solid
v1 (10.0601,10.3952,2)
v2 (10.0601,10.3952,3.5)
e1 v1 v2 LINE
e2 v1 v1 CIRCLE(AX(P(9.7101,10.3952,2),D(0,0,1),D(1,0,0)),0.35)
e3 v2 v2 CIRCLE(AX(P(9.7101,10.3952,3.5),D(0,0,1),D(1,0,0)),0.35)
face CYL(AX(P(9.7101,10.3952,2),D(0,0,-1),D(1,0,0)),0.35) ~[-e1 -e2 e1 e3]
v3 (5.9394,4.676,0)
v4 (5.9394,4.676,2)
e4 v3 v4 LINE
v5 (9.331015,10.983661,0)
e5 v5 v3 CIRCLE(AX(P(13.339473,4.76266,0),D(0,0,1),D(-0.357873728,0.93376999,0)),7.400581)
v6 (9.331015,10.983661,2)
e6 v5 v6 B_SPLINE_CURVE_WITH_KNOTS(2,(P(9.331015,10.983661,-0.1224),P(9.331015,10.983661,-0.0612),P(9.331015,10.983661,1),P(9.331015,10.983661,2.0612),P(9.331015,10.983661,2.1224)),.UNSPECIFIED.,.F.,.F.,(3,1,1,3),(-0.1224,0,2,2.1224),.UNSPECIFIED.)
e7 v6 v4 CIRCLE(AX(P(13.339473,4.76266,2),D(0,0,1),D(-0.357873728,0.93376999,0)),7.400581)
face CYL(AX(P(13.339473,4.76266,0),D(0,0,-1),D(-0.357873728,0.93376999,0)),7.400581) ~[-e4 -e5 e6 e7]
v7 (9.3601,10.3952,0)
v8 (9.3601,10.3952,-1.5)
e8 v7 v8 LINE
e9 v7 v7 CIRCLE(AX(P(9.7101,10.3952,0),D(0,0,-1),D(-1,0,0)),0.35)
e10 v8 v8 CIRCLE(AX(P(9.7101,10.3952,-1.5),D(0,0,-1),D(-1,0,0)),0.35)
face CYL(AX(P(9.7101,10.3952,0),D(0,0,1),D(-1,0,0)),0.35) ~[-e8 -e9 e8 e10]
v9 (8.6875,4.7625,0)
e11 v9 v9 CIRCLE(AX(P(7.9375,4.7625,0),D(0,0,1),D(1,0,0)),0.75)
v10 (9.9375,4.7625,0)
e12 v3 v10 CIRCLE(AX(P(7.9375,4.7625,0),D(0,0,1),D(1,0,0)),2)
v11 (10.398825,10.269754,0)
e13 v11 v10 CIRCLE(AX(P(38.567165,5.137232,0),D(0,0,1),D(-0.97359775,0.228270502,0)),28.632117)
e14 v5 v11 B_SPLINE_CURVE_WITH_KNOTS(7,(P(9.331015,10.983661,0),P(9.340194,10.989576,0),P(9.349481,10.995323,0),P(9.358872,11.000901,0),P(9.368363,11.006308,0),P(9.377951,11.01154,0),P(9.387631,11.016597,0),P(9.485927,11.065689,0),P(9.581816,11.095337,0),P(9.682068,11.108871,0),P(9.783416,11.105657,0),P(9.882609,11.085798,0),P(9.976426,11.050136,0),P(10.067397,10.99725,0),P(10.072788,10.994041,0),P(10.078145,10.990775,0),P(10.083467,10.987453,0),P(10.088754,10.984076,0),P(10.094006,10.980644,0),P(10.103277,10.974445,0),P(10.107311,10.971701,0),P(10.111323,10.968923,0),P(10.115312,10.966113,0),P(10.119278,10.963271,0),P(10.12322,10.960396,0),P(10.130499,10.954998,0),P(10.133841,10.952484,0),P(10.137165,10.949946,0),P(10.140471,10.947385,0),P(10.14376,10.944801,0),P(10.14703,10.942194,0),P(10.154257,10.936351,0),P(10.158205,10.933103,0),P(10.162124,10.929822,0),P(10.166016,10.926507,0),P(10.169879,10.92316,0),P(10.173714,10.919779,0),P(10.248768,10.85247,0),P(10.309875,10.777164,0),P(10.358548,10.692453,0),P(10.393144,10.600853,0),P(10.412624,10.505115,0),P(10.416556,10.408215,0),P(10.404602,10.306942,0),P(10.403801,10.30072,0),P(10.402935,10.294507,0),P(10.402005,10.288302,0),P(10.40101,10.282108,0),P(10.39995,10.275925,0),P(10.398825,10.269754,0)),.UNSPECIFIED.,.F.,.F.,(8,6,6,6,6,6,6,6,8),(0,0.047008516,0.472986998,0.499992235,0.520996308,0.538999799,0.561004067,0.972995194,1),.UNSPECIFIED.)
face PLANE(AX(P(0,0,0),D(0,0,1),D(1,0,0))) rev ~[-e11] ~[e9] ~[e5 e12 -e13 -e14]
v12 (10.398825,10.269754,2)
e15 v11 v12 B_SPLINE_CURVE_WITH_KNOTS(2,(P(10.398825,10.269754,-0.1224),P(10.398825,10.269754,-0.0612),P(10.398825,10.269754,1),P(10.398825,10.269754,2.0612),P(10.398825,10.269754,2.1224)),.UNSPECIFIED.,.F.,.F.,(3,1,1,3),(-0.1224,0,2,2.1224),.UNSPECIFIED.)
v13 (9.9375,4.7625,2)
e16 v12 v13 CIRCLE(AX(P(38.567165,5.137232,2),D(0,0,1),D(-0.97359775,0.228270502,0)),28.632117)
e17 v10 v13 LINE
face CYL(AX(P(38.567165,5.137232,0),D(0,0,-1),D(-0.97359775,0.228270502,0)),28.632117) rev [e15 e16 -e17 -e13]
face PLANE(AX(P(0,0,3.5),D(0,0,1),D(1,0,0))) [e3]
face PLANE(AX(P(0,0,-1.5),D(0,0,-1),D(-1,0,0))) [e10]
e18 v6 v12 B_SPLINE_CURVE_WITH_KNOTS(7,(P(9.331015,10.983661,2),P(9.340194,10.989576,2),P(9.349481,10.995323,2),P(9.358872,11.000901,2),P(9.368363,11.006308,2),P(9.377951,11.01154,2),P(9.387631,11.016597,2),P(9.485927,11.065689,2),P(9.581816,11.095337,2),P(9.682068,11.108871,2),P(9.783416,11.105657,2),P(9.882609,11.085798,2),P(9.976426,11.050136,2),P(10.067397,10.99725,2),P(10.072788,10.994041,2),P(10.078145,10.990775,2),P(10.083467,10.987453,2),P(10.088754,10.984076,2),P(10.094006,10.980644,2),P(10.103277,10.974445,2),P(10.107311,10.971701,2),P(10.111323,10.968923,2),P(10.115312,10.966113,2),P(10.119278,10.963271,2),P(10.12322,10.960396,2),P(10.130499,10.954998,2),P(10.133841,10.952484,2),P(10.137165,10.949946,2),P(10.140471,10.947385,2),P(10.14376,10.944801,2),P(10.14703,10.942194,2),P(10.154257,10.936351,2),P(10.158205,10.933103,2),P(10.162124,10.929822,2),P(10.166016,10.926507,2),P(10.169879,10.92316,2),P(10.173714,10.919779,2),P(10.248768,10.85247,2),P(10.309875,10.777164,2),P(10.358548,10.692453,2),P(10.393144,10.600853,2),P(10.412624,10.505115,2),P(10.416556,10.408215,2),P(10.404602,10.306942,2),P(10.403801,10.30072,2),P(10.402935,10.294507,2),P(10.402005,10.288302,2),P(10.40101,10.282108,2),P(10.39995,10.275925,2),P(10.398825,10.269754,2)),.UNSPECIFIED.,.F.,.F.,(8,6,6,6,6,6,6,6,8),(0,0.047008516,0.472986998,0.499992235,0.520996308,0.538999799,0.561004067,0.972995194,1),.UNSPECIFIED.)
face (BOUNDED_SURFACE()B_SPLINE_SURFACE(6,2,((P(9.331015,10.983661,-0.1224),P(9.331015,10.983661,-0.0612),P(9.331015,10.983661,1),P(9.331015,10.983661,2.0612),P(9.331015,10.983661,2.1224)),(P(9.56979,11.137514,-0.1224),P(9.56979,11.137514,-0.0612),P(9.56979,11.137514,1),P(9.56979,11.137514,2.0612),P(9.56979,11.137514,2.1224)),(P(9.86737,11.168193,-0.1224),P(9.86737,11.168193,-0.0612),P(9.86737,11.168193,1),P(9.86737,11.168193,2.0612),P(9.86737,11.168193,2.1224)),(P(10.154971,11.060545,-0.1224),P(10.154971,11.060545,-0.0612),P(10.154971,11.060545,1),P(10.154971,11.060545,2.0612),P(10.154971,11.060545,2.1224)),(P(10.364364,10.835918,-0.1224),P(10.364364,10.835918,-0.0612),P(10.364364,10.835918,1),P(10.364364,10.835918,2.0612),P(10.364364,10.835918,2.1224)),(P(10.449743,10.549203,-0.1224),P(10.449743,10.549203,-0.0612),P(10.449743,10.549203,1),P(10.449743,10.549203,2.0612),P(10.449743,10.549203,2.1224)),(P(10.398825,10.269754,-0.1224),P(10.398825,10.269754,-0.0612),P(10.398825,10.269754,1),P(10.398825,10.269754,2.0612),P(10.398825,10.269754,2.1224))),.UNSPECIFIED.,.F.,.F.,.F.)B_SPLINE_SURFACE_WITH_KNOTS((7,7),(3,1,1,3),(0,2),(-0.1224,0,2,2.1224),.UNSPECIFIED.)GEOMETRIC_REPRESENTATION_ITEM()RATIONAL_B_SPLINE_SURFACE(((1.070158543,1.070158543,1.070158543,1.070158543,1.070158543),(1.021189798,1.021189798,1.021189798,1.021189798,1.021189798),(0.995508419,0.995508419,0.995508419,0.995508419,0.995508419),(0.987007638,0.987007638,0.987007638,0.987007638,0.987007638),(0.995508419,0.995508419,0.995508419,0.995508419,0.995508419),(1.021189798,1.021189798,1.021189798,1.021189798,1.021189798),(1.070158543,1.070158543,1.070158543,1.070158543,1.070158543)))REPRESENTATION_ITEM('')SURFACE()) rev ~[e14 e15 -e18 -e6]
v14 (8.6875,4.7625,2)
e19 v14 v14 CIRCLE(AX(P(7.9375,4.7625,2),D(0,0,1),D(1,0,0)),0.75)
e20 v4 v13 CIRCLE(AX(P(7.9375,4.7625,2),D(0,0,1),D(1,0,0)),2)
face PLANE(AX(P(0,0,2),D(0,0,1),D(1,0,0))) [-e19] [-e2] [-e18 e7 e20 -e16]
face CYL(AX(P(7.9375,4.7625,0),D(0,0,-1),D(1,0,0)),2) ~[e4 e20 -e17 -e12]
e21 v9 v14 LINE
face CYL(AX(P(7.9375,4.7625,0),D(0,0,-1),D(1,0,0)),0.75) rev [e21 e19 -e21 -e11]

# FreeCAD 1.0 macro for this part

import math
import FreeCAD as App
import Part
import Sketcher
from FreeCAD import Vector


def edges_at(feature, points):
    """Names of the edges that pass closest to the given points."""
    edges = feature.Shape.Edges
    near = lambda p: min(range(len(edges)), key=lambda i: edges[i].distToShape(Part.Vertex(*p))[0])
    return sorted({f"Edge{near(p) + 1}" for p in points})

doc = App.newDocument("Part")
body = doc.addObject("PartDesign::Body", "Body")

sketch1 = body.newObject("Sketcher::SketchObject", "Sketch")
sketch1.AttachmentSupport = (doc.getObject("XY_Plane"), [""])
sketch1.MapMode = "FlatFace"
sketch1.addGeometry([
    Part.ArcOfCircle(Part.Circle(Vector(7.9375, 4.7625, 0), Vector(0, 0, 1), 2), math.radians(-177.521149), math.radians(0)),
    Part.ArcOfCircle(Part.Circle(Vector(38.567165, 5.137232, 0), Vector(0, 0, 1), 28.632117), math.radians(166.80473), math.radians(180.749899)),
    Part.ArcOfCircle(Part.Circle(Vector(13.3396, 4.7625, 0), Vector(0, 0, 1), 7.400775), math.radians(110.970144), math.radians(180.669693)),
    Part.Circle(Vector(7.9375, 4.7625, 0), Vector(0, 0, 1), 0.75),
], False)
sketch1.addConstraint([
    Sketcher.Constraint("Coincident", 0, 2, 1, 2),
    Sketcher.Constraint("Coincident", 1, 1, 2, 1),
    Sketcher.Constraint("Coincident", 2, 2, 0, 1),
    Sketcher.Constraint("Coincident", 3, 3, 0, 3),
    Sketcher.Constraint("Horizontal", 0, 3, 2, 3),
    Sketcher.Constraint("Horizontal", 3, 3, 0, 2),
    Sketcher.Constraint("Radius", 0, 2.0),
    Sketcher.Constraint("Diameter", 3, 1.5),
    Sketcher.Constraint("Radius", 1, 28.632),
    Sketcher.Constraint("Radius", 2, 7.4008),
    Sketcher.Constraint("DistanceX", -1, 1, 1, 1, 10.691),
    Sketcher.Constraint("DistanceY", -1, 1, 1, 1, 11.673),
    Sketcher.Constraint("DistanceY", -1, 1, 2, 2, 4.676),
    Sketcher.Constraint("DistanceX", -1, 1, 0, 3, 7.9375),
])
pad1 = body.newObject("PartDesign::Pad", "Pad")
pad1.Profile = sketch1
pad1.Length = 2
doc.recompute()

fillet = body.newObject("PartDesign::Fillet", "Fillet")
fillet.Base = (pad1, edges_at(pad1, [(10.691, 11.673, 1)]))
fillet.Radius = 0.7

sketch2 = body.newObject("Sketcher::SketchObject", "Sketch001")
sketch2.AttachmentSupport = (doc.getObject("XY_Plane"), [""])
sketch2.MapMode = "FlatFace"
sketch2.AttachmentOffset = App.Placement(Vector(0, 0, 2), App.Rotation())
sketch2.addGeometry(Part.Circle(Vector(9.7101, 10.3952, 0), Vector(0, 0, 1), 0.35), False)
sketch2.addConstraint([
    Sketcher.Constraint("Diameter", 0, 0.7),
    Sketcher.Constraint("DistanceX", -1, 1, 0, 3, 9.71),
    Sketcher.Constraint("DistanceY", -1, 1, 0, 3, 10.3952),
])
pad2 = body.newObject("PartDesign::Pad", "Pad001")
pad2.Profile = sketch2
pad2.Length = 1.5

sketch3 = body.newObject("Sketcher::SketchObject", "Sketch002")
sketch3.AttachmentSupport = (doc.getObject("XY_Plane"), [""])
sketch3.MapMode = "FlatFace"
sketch3.addGeometry(Part.Circle(Vector(9.7101, 10.3952, 0), Vector(0, 0, 1), 0.35), False)
sketch3.addConstraint([
    Sketcher.Constraint("Diameter", 0, 0.7),
    Sketcher.Constraint("DistanceX", -1, 1, 0, 3, 9.71),
    Sketcher.Constraint("DistanceY", -1, 1, 0, 3, 10.3952),
])
pad3 = body.newObject("PartDesign::Pad", "Pad002")
pad3.Profile = sketch3
pad3.Length = 1.5
pad3.Reversed = True

doc.recompute()
